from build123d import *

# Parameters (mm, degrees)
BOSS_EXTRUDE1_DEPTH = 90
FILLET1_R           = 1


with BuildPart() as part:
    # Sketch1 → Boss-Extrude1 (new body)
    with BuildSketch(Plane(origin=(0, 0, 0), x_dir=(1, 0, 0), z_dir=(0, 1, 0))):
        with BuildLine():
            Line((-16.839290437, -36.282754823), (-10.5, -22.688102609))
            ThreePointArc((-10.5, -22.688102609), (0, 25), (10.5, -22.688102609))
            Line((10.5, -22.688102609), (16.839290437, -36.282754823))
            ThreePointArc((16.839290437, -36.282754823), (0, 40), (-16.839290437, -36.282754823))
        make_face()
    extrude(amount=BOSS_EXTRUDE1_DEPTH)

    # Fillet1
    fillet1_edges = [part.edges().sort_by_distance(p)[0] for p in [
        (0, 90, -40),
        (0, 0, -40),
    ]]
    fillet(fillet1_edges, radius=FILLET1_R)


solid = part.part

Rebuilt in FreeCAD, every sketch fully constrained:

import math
import FreeCAD as App
import Part
import Sketcher
from FreeCAD import Vector
Q = App.Units.Quantity


def edges_at(feature, points):
    """Names of the edges that pass closest to the given points."""
    edges = feature.Shape.Edges
    near = lambda p: min(range(len(edges)), key=lambda i: edges[i].distToShape(Part.Vertex(*p))[0])
    return sorted({f"Edge{near(p) + 1}" for p in points})

doc = App.newDocument("Part")
body = doc.addObject("PartDesign::Body", "Body")

# Sketch on XZ plane
sketch1 = body.newObject("Sketcher::SketchObject", "Sketch")
sketch1.AttachmentSupport = (doc.getObject("XZ_Plane"), [""])
sketch1.MapMode = "FlatFace"
sketch1.addGeometry(Part.LineSegment(Vector(-17, 36, 0), Vector(-10, 23, 0)), False)
sketch1.addGeometry(Part.ArcOfCircle(Part.Circle(Vector(0, 0, 0), Vector(0, 0, 1), 25), math.radians(115), math.radians(425)), False)
sketch1.addGeometry(Part.LineSegment(Vector(10, 23, 0), Vector(17, 36, 0)), False)
sketch1.addGeometry(Part.ArcOfCircle(Part.Circle(Vector(0, 0, 0), Vector(0, 0, 1), 40), math.radians(115), math.radians(425)), False)
sketch1.addConstraint(Sketcher.Constraint("Coincident", 0, 2, 1, 1))
sketch1.addConstraint(Sketcher.Constraint("Coincident", 1, 2, 2, 1))
sketch1.addConstraint(Sketcher.Constraint("Coincident", 2, 2, 3, 2))
sketch1.addConstraint(Sketcher.Constraint("Coincident", 3, 1, 0, 1))
sketch1.addConstraint(Sketcher.Constraint("Coincident", 1, 3, -1, 1))
sketch1.addConstraint(Sketcher.Constraint("Coincident", 3, 3, -1, 1))
sketch1.addConstraint(Sketcher.Constraint("Horizontal", 0, 2, 1, 2))
sketch1.addConstraint(Sketcher.Constraint("Horizontal", 2, 2, 3, 1))
sketch1.addConstraint(Sketcher.Constraint("Radius", 1, 25.0))
sketch1.addConstraint(Sketcher.Constraint("Radius", 3, 40.0))
sketch1.addConstraint(Sketcher.Constraint("Angle", 0, Q("-65 deg")))
sketch1.addConstraint(Sketcher.Constraint("DistanceX", 0, 2, 1, 2, 21.0))
pad1 = body.newObject("PartDesign::Pad", "Pad")
pad1.Profile = sketch1
pad1.Length = 90
pad1.Reversed = True
doc.recompute()

fillet = body.newObject("PartDesign::Fillet", "Fillet")
fillet.Base = (pad1, edges_at(pad1, [(0, 90, -40), (0, 0, -40)]))
fillet.Radius = 1

doc.recompute()
